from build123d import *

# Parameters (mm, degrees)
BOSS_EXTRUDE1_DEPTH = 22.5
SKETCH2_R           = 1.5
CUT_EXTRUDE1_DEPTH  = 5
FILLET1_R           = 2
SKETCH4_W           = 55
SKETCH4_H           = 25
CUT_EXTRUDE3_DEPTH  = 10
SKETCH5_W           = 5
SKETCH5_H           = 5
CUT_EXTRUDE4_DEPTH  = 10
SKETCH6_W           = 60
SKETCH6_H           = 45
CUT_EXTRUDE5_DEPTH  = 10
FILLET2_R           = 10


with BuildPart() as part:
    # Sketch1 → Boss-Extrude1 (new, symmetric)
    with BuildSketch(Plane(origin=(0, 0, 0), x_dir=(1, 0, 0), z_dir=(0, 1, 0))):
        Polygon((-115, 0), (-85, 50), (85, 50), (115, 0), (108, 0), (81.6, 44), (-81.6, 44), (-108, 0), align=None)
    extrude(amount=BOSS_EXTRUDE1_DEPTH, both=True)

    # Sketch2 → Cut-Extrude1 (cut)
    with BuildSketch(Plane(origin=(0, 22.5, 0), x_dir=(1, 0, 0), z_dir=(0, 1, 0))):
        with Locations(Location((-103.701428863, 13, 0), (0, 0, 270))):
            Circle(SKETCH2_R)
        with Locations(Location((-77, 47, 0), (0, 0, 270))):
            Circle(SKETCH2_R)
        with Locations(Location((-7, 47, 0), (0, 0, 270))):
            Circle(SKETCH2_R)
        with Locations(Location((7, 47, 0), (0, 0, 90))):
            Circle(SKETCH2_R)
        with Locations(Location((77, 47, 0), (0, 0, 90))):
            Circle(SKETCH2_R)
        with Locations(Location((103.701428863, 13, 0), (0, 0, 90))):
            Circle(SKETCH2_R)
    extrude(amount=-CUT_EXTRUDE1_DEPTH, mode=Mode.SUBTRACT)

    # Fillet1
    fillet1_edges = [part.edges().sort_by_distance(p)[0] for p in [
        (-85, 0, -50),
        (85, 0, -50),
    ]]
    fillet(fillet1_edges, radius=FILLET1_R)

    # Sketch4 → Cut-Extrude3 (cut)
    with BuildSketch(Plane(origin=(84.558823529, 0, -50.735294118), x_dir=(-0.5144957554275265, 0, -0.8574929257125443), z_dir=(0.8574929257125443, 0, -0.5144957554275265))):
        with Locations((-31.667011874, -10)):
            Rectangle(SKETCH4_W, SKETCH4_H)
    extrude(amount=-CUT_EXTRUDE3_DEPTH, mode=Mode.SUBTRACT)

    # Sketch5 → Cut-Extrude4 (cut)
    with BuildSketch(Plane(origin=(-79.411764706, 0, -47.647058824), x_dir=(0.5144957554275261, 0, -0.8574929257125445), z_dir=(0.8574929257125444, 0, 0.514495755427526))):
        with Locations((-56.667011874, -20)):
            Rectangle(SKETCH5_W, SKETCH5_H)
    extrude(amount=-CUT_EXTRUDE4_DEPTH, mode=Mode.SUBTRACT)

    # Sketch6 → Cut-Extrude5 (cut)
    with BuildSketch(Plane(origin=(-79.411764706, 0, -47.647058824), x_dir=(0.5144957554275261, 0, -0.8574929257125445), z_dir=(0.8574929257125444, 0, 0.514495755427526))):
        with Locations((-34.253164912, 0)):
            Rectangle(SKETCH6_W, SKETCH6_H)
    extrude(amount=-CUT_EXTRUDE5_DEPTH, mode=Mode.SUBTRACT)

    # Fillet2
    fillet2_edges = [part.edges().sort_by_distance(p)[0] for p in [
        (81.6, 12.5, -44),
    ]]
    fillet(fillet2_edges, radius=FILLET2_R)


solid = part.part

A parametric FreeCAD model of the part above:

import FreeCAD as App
import Part
import Sketcher
Q = App.Units.Quantity


def edges_at(feature, points):
    """Names of the edges that pass closest to the given points."""
    edges = feature.Shape.Edges
    near = lambda p: min(range(len(edges)), key=lambda i: edges[i].distToShape(Part.Vertex(*p))[0])
    return sorted({f"Edge{near(p) + 1}" for p in points})


def add_polygon(sketch, points):
    """Adds a closed chain of lines whose ends are joined by coincident constraints."""
    first, n = sketch.GeometryCount, len(points)
    for a, b in zip(points, points[1:] + points[:1]):
        sketch.addGeometry(Part.LineSegment(App.Vector(*a, 0), App.Vector(*b, 0)), False)
    for i in range(n):
        sketch.addConstraint(Sketcher.Constraint("Coincident", first + i, 2, first + (i + 1) % n, 1))

doc = App.newDocument("Part")
body = doc.addObject("PartDesign::Body", "Body")

# Sketch on XZ plane
sketch1 = doc.addObject("Sketcher::SketchObject", "Sketch")
body.addObject(sketch1)
sketch1.AttachmentSupport = (doc.XZ_Plane, [""])
sketch1.MapMode = "FlatFace"
add_polygon(sketch1, [(-85, -50), (-115, 0), (-108, 0), (-82, -44), (82, -44), (108, 0), (115, 0), (85, -50)])  # lines 0-7
sketch1.addConstraint([
    Sketcher.Constraint("Horizontal", 1),
    Sketcher.Constraint("Horizontal", 3),
    Sketcher.Constraint("Horizontal", 5),
    Sketcher.Constraint("Horizontal", 7),
    Sketcher.Constraint("Symmetric", 1, 2, 4, 2, -1, 1),
    Sketcher.Constraint("Symmetric", 0, 2, 5, 2, -2),
    Sketcher.Constraint("Parallel", 0, 2),
    Sketcher.Constraint("Parallel", 4, 6),
    Sketcher.Constraint("Equal", 2, 4),
    Sketcher.Constraint("DistanceX", 1, 1, 1, 2, Q("7 mm")),
    Sketcher.Constraint("DistanceX", 7, 2, 7, 1, Q("170 mm")),
    Sketcher.Constraint("DistanceX", 3, 1, 3, 2, Q("163.2 mm")),
    Sketcher.Constraint("DistanceX", 0, 2, -1, 1, Q("115 mm")),
    Sketcher.Constraint("DistanceY", 2, 2, -1, 1, Q("44 mm")),
])
pad1 = doc.addObject("PartDesign::Pad", "Pad")
body.addObject(pad1)
pad1.Profile = sketch1
pad1.Length = 45
pad1.Midplane = True

# Sketch on XZ plane
sketch2 = doc.addObject("Sketcher::SketchObject", "Sketch001")
body.addObject(sketch2)
sketch2.AttachmentSupport = (doc.XZ_Plane, [""])
sketch2.MapMode = "FlatFace"
sketch2.AttachmentOffset = App.Placement(App.Vector(0, 0, -22.5), App.Rotation())
sketch2.addGeometry([
    Part.Circle(App.Vector(-103.7, -13, 0), App.Vector(0, 0, 1), 1.5),  # 0
    Part.Circle(App.Vector(-77, -47, 0), App.Vector(0, 0, 1), 1.5),  # 1
    Part.Circle(App.Vector(-7, -47, 0), App.Vector(0, 0, 1), 1.5),  # 2
    Part.Circle(App.Vector(7, -47, 0), App.Vector(0, 0, 1), 1.5),  # 3
    Part.Circle(App.Vector(77, -47, 0), App.Vector(0, 0, 1), 1.5),  # 4
    Part.Circle(App.Vector(103.7, -13, 0), App.Vector(0, 0, 1), 1.5),  # 5
], False)
sketch2.addConstraint([
    Sketcher.Constraint("Equal", 0, 1),
    Sketcher.Constraint("Equal", 1, 2),
    Sketcher.Constraint("Equal", 2, 3),
    Sketcher.Constraint("Equal", 3, 4),
    Sketcher.Constraint("Equal", 4, 5),
    Sketcher.Constraint("Symmetric", 2, 3, 3, 3, -2),
    Sketcher.Constraint("Symmetric", 1, 3, 4, 3, -2),
    Sketcher.Constraint("Symmetric", 0, 3, 5, 3, -2),
    Sketcher.Constraint("Horizontal", 1, 3, 2, 3),
    Sketcher.Constraint("Diameter", 0, Q("3 mm")),
    Sketcher.Constraint("DistanceY", 0, 3, -1, 1, Q("13 mm")),
    Sketcher.Constraint("DistanceX", 1, 3, -1, 1, Q("77 mm")),
    Sketcher.Constraint("DistanceY", 1, 3, -1, 1, Q("47 mm")),
    Sketcher.Constraint("DistanceX", 2, 3, -1, 1, Q("7 mm")),
    Sketcher.Constraint("DistanceX", 0, 3, -1, 1, Q("103.701429 mm")),
])
pocket1 = doc.addObject("PartDesign::Pocket", "Pocket")
body.addObject(pocket1)
pocket1.Profile = sketch2
pocket1.Length = 5
pocket1.Reversed = True
doc.recompute()

fillet = doc.addObject("PartDesign::Fillet", "Fillet")
body.addObject(fillet)
fillet.Base = (pocket1, edges_at(pocket1, [(-85, 0, -50), (85, 0, -50)]))
fillet.Radius = 2

# Sketch on an angled plane
sketch3 = doc.addObject("Sketcher::SketchObject", "Sketch002")
body.addObject(sketch3)
sketch3.Placement = App.Placement(App.Vector(84.558824, 0, -50.735294), App.Rotation(App.Vector(-0.514495755, 0, -0.857492926), App.Vector(0, 1, 0), App.Vector(0.857492926, 0, -0.514495755), "ZXY"))
add_polygon(sketch3, [(-59, 2), (-59, -23), (-4, -23), (-4, 2)])  # lines 0-3
sketch3.addConstraint([
    Sketcher.Constraint("Vertical", 0),
    Sketcher.Constraint("Horizontal", 1),
    Sketcher.Constraint("Vertical", 2),
    Sketcher.Constraint("Horizontal", 3),
    Sketcher.Constraint("DistanceX", 1, 1, 1, 2, Q("55 mm")),
    Sketcher.Constraint("DistanceY", 0, 2, 0, 1, Q("25 mm")),
    Sketcher.Constraint("DistanceY", 0, 2, -1, 1, Q("22.5 mm")),
    Sketcher.Constraint("DistanceX", 0, 2, -1, 1, Q("59.167012 mm")),
])
pocket2 = doc.addObject("PartDesign::Pocket", "Pocket001")
body.addObject(pocket2)
pocket2.Profile = sketch3
pocket2.Length = 10

# Sketch on an angled plane
sketch4 = doc.addObject("Sketcher::SketchObject", "Sketch003")
body.addObject(sketch4)
sketch4.Placement = App.Placement(App.Vector(-79.411765, 0, -47.647059), App.Rotation(App.Vector(0.514495755, 0, -0.857492926), App.Vector(0, 1, 0), App.Vector(0.857492926, 0, 0.514495755), "ZXY"))
add_polygon(sketch4, [(-59, -18), (-59, -23), (-54, -23), (-54, -18)])  # lines 0-3
sketch4.addConstraint([
    Sketcher.Constraint("Vertical", 0),
    Sketcher.Constraint("Horizontal", 1),
    Sketcher.Constraint("Vertical", 2),
    Sketcher.Constraint("Horizontal", 3),
    Sketcher.Constraint("Equal", 3, 0),
    Sketcher.Constraint("DistanceX", 1, 1, 1, 2, Q("5 mm")),
    Sketcher.Constraint("DistanceY", 0, 2, -1, 1, Q("22.5 mm")),
    Sketcher.Constraint("DistanceX", 0, 2, -1, 1, Q("59.167012 mm")),
])
pocket3 = doc.addObject("PartDesign::Pocket", "Pocket002")
body.addObject(pocket3)
pocket3.Profile = sketch4
pocket3.Length = 10

# Sketch on an angled plane
sketch5 = doc.addObject("Sketcher::SketchObject", "Sketch004")
body.addObject(sketch5)
sketch5.Placement = App.Placement(App.Vector(-79.411765, 0, -47.647059), App.Rotation(App.Vector(0.514495755, 0, -0.857492926), App.Vector(0, 1, 0), App.Vector(0.857492926, 0, 0.514495755), "ZXY"))
add_polygon(sketch5, [(-64, 23), (-64, -23), (-4, -23), (-4, 23)])  # lines 0-3
sketch5.addConstraint([
    Sketcher.Constraint("Vertical", 0),
    Sketcher.Constraint("Horizontal", 1),
    Sketcher.Constraint("Vertical", 2),
    Sketcher.Constraint("Horizontal", 3),
    Sketcher.Constraint("DistanceX", 1, 1, 1, 2, Q("60 mm")),
    Sketcher.Constraint("DistanceY", 0, 2, 0, 1, Q("45 mm")),
    Sketcher.Constraint("DistanceY", 0, 2, -1, 1, Q("22.5 mm")),
    Sketcher.Constraint("DistanceX", 0, 2, -1, 1, Q("64.253165 mm")),
])
pocket4 = doc.addObject("PartDesign::Pocket", "Pocket003")
body.addObject(pocket4)
pocket4.Profile = sketch5
pocket4.Length = 10
doc.recompute()

fillet2 = doc.addObject("PartDesign::Fillet", "Fillet001")
body.addObject(fillet2)
fillet2.Base = (pocket4, edges_at(pocket4, [(81.6, 12.5, -44)]))
fillet2.Radius = 10

doc.recompute()
